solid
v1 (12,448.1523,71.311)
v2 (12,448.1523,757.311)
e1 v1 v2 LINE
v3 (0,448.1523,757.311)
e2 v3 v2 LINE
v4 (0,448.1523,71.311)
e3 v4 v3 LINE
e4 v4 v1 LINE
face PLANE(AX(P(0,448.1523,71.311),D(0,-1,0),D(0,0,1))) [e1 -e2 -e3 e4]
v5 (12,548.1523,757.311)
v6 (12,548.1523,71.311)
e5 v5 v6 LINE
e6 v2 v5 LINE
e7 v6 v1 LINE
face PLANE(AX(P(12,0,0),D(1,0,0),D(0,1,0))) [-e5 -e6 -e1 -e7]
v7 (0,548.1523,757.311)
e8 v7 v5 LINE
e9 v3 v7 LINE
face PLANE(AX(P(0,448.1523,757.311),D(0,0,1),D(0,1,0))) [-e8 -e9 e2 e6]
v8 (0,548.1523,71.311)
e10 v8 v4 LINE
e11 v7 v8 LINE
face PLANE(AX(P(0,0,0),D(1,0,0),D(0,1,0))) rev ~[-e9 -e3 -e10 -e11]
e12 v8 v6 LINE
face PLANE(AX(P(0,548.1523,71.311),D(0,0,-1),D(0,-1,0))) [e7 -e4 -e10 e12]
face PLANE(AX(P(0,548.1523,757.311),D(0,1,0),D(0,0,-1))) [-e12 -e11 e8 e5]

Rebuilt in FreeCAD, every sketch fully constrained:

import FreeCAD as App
import Part
import Sketcher

doc = App.newDocument("Part")
body = doc.addObject("PartDesign::Body", "Body")

sketch1 = body.newObject("Sketcher::SketchObject", "Sketch")
sketch1.AttachmentSupport = (doc.getObject("YZ_Plane"), [""])
sketch1.MapMode = "FlatFace"
sketch1.addGeometry(Part.LineSegment(App.Vector(548, 757, 0), App.Vector(448, 757, 0)), False)
sketch1.addGeometry(Part.LineSegment(App.Vector(448, 757, 0), App.Vector(448, 71, 0)), False)
sketch1.addGeometry(Part.LineSegment(App.Vector(448, 71, 0), App.Vector(548, 71, 0)), False)
sketch1.addGeometry(Part.LineSegment(App.Vector(548, 71, 0), App.Vector(548, 757, 0)), False)
sketch1.addConstraint(Sketcher.Constraint("Coincident", 0, 2, 1, 1))
sketch1.addConstraint(Sketcher.Constraint("Coincident", 1, 2, 2, 1))
sketch1.addConstraint(Sketcher.Constraint("Coincident", 2, 2, 3, 1))
sketch1.addConstraint(Sketcher.Constraint("Coincident", 3, 2, 0, 1))
sketch1.addConstraint(Sketcher.Constraint("Horizontal", 0))
sketch1.addConstraint(Sketcher.Constraint("Vertical", 1))
sketch1.addConstraint(Sketcher.Constraint("Horizontal", 2))
sketch1.addConstraint(Sketcher.Constraint("Vertical", 3))
sketch1.addConstraint(Sketcher.Constraint("DistanceX", 0, 2, 0, 1, 100.0))
sketch1.addConstraint(Sketcher.Constraint("DistanceY", 1, 2, 1, 1, 686.0))
sketch1.addConstraint(Sketcher.Constraint("DistanceY", -1, 1, 0, 2, 757.311))
sketch1.addConstraint(Sketcher.Constraint("DistanceX", -1, 1, 0, 2, 448.1523))
pad1 = body.newObject("PartDesign::Pad", "Pad")
pad1.Profile = sketch1
pad1.Length = 12

doc.recompute()
